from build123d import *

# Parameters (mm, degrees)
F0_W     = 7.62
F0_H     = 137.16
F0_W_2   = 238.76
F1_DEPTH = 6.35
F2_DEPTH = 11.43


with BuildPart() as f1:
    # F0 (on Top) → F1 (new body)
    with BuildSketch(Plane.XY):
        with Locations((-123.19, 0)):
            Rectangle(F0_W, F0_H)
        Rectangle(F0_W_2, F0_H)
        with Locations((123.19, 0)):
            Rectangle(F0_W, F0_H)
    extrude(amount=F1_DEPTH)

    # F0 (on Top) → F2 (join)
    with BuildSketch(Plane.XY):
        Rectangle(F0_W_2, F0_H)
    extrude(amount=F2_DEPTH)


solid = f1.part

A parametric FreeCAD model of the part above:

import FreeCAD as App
import Part
import Sketcher
from FreeCAD import Vector
Q = App.Units.Quantity

doc = App.newDocument("Part")
params = doc.addObject("Spreadsheet::Sheet", "Params")
for row, (alias, value) in enumerate([
    ("sketch1_width", "10 in"),
    ("sketch1_height", "5.4 in"),
    ("pad1_length", "0.25 in"),
    ("sketch2_width", "9.4 in"),
    ("sketch2_height", "5.4 in"),
    ("pad2_length", "0.45 in"),
], start=1):
    params.set(f"A{row}", alias)
    params.set(f"B{row}", "=" + value)
    params.setAlias(f"B{row}", alias)

body = doc.addObject("PartDesign::Body", "Body")

# Sketch on XY plane
sketch1 = body.newObject("Sketcher::SketchObject", "Sketch")
sketch1.AttachmentSupport = (doc.getObject("XY_Plane"), [""])
sketch1.MapMode = "FlatFace"
sketch1.addGeometry([
    Part.LineSegment(Vector(-127, 68.58, 0), Vector(-127, -68.58, 0)),
    Part.LineSegment(Vector(-127, -68.58, 0), Vector(127, -68.58, 0)),
    Part.LineSegment(Vector(127, -68.58, 0), Vector(127, 68.58, 0)),
    Part.LineSegment(Vector(127, 68.58, 0), Vector(-127, 68.58, 0)),
], False)
sketch1.addConstraint([
    Sketcher.Constraint("Coincident", 0, 2, 1, 1),
    Sketcher.Constraint("Coincident", 1, 2, 2, 1),
    Sketcher.Constraint("Coincident", 2, 2, 3, 1),
    Sketcher.Constraint("Coincident", 3, 2, 0, 1),
    Sketcher.Constraint("Vertical", 0),
    Sketcher.Constraint("Horizontal", 1),
    Sketcher.Constraint("Vertical", 2),
    Sketcher.Constraint("Horizontal", 3),
    Sketcher.Constraint("Symmetric", 0, 2, 2, 2, -1, 1),
    Sketcher.Constraint("DistanceX", 1, 1, 1, 2, Q("10 in")),
    Sketcher.Constraint("DistanceY", 0, 2, 0, 1, Q("5.4 in")),
])
sketch1.setExpression("Constraints[9]", "Params.sketch1_width")
sketch1.setExpression("Constraints[10]", "Params.sketch1_height")
pad1 = body.newObject("PartDesign::Pad", "Pad")
pad1.Profile = sketch1
pad1.setExpression("Length", "Params.pad1_length")

# Sketch on XY plane
sketch2 = body.newObject("Sketcher::SketchObject", "Sketch001")
sketch2.AttachmentSupport = (doc.getObject("XY_Plane"), [""])
sketch2.MapMode = "FlatFace"
sketch2.addGeometry([
    Part.LineSegment(Vector(-119.38, 68.58, 0), Vector(-119.38, -68.58, 0)),
    Part.LineSegment(Vector(-119.38, -68.58, 0), Vector(119.38, -68.58, 0)),
    Part.LineSegment(Vector(119.38, -68.58, 0), Vector(119.38, 68.58, 0)),
    Part.LineSegment(Vector(119.38, 68.58, 0), Vector(-119.38, 68.58, 0)),
], False)
sketch2.addConstraint([
    Sketcher.Constraint("Coincident", 0, 2, 1, 1),
    Sketcher.Constraint("Coincident", 1, 2, 2, 1),
    Sketcher.Constraint("Coincident", 2, 2, 3, 1),
    Sketcher.Constraint("Coincident", 3, 2, 0, 1),
    Sketcher.Constraint("Vertical", 0),
    Sketcher.Constraint("Horizontal", 1),
    Sketcher.Constraint("Vertical", 2),
    Sketcher.Constraint("Horizontal", 3),
    Sketcher.Constraint("Symmetric", 0, 2, 2, 2, -1, 1),
    Sketcher.Constraint("DistanceX", 1, 1, 1, 2, Q("9.4 in")),
    Sketcher.Constraint("DistanceY", 0, 2, 0, 1, Q("5.4 in")),
])
sketch2.setExpression("Constraints[9]", "Params.sketch2_width")
sketch2.setExpression("Constraints[10]", "Params.sketch2_height")
pad2 = body.newObject("PartDesign::Pad", "Pad001")
pad2.Profile = sketch2
pad2.setExpression("Length", "Params.pad2_length")

doc.recompute()
